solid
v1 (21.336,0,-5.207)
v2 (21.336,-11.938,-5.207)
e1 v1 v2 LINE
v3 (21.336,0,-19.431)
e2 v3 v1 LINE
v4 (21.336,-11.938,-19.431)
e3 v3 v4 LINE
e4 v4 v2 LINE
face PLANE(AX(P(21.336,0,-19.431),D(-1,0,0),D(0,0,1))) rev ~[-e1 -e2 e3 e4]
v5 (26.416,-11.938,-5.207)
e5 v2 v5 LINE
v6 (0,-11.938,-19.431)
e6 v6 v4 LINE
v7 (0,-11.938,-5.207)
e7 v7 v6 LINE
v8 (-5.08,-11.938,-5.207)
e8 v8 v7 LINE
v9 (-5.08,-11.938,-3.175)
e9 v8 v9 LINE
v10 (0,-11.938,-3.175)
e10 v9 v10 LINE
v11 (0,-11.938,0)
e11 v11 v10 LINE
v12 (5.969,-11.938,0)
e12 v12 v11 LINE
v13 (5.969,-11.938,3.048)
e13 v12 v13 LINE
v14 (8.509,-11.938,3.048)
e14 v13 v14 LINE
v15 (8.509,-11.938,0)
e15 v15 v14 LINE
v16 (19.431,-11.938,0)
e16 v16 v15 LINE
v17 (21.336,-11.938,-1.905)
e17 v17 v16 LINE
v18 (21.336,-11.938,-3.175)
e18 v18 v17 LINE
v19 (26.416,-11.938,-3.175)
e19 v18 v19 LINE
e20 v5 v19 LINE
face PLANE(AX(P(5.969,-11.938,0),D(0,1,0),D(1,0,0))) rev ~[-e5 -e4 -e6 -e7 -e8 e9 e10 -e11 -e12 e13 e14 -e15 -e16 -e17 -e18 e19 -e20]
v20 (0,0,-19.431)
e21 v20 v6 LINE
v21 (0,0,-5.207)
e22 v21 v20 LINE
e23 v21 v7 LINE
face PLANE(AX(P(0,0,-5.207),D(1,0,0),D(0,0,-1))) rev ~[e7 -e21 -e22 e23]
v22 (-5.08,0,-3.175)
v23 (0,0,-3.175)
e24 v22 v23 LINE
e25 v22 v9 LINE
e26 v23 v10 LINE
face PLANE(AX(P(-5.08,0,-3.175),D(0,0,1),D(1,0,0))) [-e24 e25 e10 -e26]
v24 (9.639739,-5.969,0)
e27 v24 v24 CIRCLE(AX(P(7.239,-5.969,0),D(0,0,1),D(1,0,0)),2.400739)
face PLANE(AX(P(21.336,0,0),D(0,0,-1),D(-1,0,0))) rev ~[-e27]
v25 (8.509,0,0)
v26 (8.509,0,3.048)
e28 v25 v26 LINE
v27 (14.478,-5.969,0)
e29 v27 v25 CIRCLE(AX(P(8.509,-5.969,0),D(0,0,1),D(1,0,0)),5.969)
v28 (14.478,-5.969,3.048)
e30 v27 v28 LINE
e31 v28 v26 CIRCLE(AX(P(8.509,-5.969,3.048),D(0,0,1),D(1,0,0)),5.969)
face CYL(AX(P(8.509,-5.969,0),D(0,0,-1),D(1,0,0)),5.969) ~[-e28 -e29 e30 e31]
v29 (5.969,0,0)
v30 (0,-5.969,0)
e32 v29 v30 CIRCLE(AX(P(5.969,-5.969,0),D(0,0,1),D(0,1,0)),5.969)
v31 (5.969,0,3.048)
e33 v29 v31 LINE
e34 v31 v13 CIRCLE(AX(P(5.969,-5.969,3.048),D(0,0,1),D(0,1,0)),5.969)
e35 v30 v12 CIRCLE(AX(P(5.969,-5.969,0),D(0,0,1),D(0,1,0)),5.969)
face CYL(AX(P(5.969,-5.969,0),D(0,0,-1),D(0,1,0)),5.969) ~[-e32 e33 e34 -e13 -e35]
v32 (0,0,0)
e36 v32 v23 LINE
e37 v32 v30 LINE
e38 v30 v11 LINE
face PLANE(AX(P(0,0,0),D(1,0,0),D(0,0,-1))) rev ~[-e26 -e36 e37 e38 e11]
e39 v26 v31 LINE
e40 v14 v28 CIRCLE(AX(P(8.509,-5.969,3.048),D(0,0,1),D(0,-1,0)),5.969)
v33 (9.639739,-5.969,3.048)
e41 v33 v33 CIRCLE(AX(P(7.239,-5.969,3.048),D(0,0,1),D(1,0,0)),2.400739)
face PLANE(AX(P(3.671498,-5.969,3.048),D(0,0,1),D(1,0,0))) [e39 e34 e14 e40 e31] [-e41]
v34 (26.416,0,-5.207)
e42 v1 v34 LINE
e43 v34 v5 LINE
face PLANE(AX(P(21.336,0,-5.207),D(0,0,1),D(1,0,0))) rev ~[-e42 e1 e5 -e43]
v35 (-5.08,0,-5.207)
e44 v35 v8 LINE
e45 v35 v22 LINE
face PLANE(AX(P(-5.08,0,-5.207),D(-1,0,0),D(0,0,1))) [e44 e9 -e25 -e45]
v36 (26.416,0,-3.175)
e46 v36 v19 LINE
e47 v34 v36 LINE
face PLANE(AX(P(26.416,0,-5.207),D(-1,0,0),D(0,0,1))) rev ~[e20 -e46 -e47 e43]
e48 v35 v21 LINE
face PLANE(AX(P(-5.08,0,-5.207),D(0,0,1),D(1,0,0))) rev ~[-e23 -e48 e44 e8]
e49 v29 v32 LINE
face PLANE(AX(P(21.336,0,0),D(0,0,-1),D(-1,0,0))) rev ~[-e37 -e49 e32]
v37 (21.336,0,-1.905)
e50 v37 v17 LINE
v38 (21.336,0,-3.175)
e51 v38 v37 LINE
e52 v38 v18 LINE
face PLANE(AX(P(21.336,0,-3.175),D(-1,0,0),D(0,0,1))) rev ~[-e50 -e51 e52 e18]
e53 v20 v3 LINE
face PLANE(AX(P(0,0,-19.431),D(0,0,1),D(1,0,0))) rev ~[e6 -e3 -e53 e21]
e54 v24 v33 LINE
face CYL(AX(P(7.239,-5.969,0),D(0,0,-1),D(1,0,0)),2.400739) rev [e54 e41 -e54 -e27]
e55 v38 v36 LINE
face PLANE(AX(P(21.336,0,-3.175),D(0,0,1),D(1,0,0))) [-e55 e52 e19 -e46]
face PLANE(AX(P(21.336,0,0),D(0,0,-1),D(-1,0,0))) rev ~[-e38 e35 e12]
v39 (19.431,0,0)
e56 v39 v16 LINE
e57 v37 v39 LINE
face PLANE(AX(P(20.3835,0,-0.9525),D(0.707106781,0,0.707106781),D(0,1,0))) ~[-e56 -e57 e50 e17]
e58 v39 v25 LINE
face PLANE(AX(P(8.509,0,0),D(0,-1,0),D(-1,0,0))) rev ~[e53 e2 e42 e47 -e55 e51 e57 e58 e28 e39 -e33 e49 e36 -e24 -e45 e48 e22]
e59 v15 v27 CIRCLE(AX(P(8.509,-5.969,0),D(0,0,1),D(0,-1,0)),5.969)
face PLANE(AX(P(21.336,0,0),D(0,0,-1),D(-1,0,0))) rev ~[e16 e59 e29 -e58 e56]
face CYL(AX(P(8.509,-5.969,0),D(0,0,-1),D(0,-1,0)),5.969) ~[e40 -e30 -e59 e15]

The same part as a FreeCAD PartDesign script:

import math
import FreeCAD as App
import Part
import Sketcher
Q = App.Units.Quantity


def edges_at(feature, points):
    """Names of the edges that pass closest to the given points."""
    edges = feature.Shape.Edges
    near = lambda p: min(range(len(edges)), key=lambda i: edges[i].distToShape(Part.Vertex(*p))[0])
    return sorted({f"Edge{near(p) + 1}" for p in points})

doc = App.newDocument("Part")
body = doc.addObject("PartDesign::Body", "Body")

# Sketch on XZ plane
sketch1 = body.newObject("Sketcher::SketchObject", "Sketch")
sketch1.AttachmentSupport = (doc.getObject("XZ_Plane"), [""])
sketch1.MapMode = "FlatFace"
sketch1.addGeometry([
    Part.LineSegment(App.Vector(-5.1, -3.2, 0), App.Vector(-5.1, -5.2, 0)),  # 0
    Part.LineSegment(App.Vector(-5.1, -5.2, 0), App.Vector(0, -5.2, 0)),  # 1
    Part.LineSegment(App.Vector(0, -5.2, 0), App.Vector(0, -19.4, 0)),  # 2
    Part.LineSegment(App.Vector(0, -19.4, 0), App.Vector(21.3, -19.4, 0)),  # 3
    Part.LineSegment(App.Vector(21.3, -19.4, 0), App.Vector(21.3, -5.2, 0)),  # 4
    Part.LineSegment(App.Vector(21.3, -5.2, 0), App.Vector(26.4, -5.2, 0)),  # 5
    Part.LineSegment(App.Vector(26.4, -5.2, 0), App.Vector(26.4, -3.2, 0)),  # 6
    Part.LineSegment(App.Vector(26.4, -3.2, 0), App.Vector(21.3, -3.2, 0)),  # 7
    Part.LineSegment(App.Vector(21.3, -3.2, 0), App.Vector(21.3, 0, 0)),  # 8
    Part.LineSegment(App.Vector(21.3, 0, 0), App.Vector(0, 0, 0)),  # 9
    Part.LineSegment(App.Vector(0, 0, 0), App.Vector(0, -3.2, 0)),  # 10
    Part.LineSegment(App.Vector(0, -3.2, 0), App.Vector(-5.1, -3.2, 0)),  # 11
], False)
sketch1.addConstraint([
    Sketcher.Constraint("Coincident", 0, 2, 1, 1),
    Sketcher.Constraint("Coincident", 1, 2, 2, 1),
    Sketcher.Constraint("Coincident", 2, 2, 3, 1),
    Sketcher.Constraint("Coincident", 3, 2, 4, 1),
    Sketcher.Constraint("Coincident", 4, 2, 5, 1),
    Sketcher.Constraint("Coincident", 5, 2, 6, 1),
    Sketcher.Constraint("Coincident", 6, 2, 7, 1),
    Sketcher.Constraint("Coincident", 7, 2, 8, 1),
    Sketcher.Constraint("Coincident", 8, 2, 9, 1),
    Sketcher.Constraint("Coincident", 9, 2, 10, 1),
    Sketcher.Constraint("Coincident", 10, 2, 11, 1),
    Sketcher.Constraint("Coincident", 11, 2, 0, 1),
    Sketcher.Constraint("Vertical", 0),
    Sketcher.Constraint("Horizontal", 1),
    Sketcher.Constraint("Vertical", 2),
    Sketcher.Constraint("Horizontal", 3),
    Sketcher.Constraint("Vertical", 4),
    Sketcher.Constraint("Horizontal", 5),
    Sketcher.Constraint("Vertical", 6),
    Sketcher.Constraint("Horizontal", 7),
    Sketcher.Constraint("Vertical", 8),
    Sketcher.Constraint("Horizontal", 9),
    Sketcher.Constraint("Vertical", 10),
    Sketcher.Constraint("Horizontal", 11),
    Sketcher.Constraint("Coincident", 9, 2, -1, 1),
    Sketcher.Constraint("PointOnObject", 1, 2, -2),
    Sketcher.Constraint("Horizontal", 1, 2, 4, 2),
    Sketcher.Constraint("Horizontal", 7, 2, 10, 2),
    Sketcher.Constraint("Vertical", 4, 2, 7, 2),
    Sketcher.Constraint("Equal", 1, 5),
    Sketcher.Constraint("DistanceX", 1, 1, 1, 2, Q("0.2 in")),
    Sketcher.Constraint("DistanceX", 3, 1, 3, 2, Q("0.84 in")),
    Sketcher.Constraint("DistanceY", 0, 2, 0, 1, Q("0.08 in")),
    Sketcher.Constraint("DistanceY", 2, 2, 2, 1, Q("0.56 in")),
    Sketcher.Constraint("DistanceY", 8, 1, 8, 2, Q("0.125 in")),
])
pad1 = body.newObject("PartDesign::Pad", "Pad")
pad1.Profile = sketch1
pad1.Length = Q("0.47 in")
doc.recompute()

chamfer = body.newObject("PartDesign::Chamfer", "Chamfer")
chamfer.Base = (pad1, edges_at(pad1, [(21.336, -5.969, 0)]))
chamfer.Size = Q("0.075 in")

# Sketch on XY plane
sketch2 = body.newObject("Sketcher::SketchObject", "Sketch001")
sketch2.AttachmentSupport = (doc.getObject("XY_Plane"), [""])
sketch2.MapMode = "FlatFace"
sketch2.addGeometry([
    Part.ArcOfCircle(Part.Circle(App.Vector(6, -6, 0), App.Vector(0, 0, 1), 6), math.radians(90), math.radians(270)),  # 0
    Part.LineSegment(App.Vector(6, -11.9, 0), App.Vector(8.5, -11.9, 0)),  # 1
    Part.ArcOfCircle(Part.Circle(App.Vector(8.5, -6, 0), App.Vector(0, 0, 1), 6), math.radians(-90), math.radians(0)),  # 2
    Part.ArcOfCircle(Part.Circle(App.Vector(8.5, -6, 0), App.Vector(0, 0, 1), 6), math.radians(0), math.radians(90)),  # 3
    Part.LineSegment(App.Vector(8.5, 0, 0), App.Vector(6, 0, 0)),  # 4
    Part.Circle(App.Vector(7.2, -6, 0), App.Vector(0, 0, 1), 2.4),  # 5
], False)
sketch2.addConstraint([
    Sketcher.Constraint("Tangent", 0, 2, 1, 1),
    Sketcher.Constraint("Tangent", 1, 2, 2, 1),
    Sketcher.Constraint("Tangent", 2, 2, 3, 1),
    Sketcher.Constraint("Tangent", 3, 2, 4, 1),
    Sketcher.Constraint("Tangent", 4, 2, 0, 1),
    Sketcher.Constraint("Horizontal", 1),
    Sketcher.Constraint("Horizontal", 4),
    Sketcher.Constraint("Equal", 0, 2),
    Sketcher.Constraint("PointOnObject", 3, 2, -1),
    Sketcher.Constraint("Horizontal", 3, 3, 5, 3),
    Sketcher.Constraint("Horizontal", 5, 3, 2, 2),
    Sketcher.Constraint("DistanceX", 1, 1, 1, 2, Q("0.1 in")),
    Sketcher.Constraint("Radius", 0, Q("0.235 in")),
    Sketcher.Constraint("DistanceX", -1, 1, 2, 2, Q("0.57 in")),
    Sketcher.Constraint("DistanceX", 0, 3, 5, 3, Q("0.05 in")),
    Sketcher.Constraint("Diameter", 5, 4.801478),
])
pad2 = body.newObject("PartDesign::Pad", "Pad001")
pad2.Profile = sketch2
pad2.Length = Q("0.12 in")

doc.recompute()
